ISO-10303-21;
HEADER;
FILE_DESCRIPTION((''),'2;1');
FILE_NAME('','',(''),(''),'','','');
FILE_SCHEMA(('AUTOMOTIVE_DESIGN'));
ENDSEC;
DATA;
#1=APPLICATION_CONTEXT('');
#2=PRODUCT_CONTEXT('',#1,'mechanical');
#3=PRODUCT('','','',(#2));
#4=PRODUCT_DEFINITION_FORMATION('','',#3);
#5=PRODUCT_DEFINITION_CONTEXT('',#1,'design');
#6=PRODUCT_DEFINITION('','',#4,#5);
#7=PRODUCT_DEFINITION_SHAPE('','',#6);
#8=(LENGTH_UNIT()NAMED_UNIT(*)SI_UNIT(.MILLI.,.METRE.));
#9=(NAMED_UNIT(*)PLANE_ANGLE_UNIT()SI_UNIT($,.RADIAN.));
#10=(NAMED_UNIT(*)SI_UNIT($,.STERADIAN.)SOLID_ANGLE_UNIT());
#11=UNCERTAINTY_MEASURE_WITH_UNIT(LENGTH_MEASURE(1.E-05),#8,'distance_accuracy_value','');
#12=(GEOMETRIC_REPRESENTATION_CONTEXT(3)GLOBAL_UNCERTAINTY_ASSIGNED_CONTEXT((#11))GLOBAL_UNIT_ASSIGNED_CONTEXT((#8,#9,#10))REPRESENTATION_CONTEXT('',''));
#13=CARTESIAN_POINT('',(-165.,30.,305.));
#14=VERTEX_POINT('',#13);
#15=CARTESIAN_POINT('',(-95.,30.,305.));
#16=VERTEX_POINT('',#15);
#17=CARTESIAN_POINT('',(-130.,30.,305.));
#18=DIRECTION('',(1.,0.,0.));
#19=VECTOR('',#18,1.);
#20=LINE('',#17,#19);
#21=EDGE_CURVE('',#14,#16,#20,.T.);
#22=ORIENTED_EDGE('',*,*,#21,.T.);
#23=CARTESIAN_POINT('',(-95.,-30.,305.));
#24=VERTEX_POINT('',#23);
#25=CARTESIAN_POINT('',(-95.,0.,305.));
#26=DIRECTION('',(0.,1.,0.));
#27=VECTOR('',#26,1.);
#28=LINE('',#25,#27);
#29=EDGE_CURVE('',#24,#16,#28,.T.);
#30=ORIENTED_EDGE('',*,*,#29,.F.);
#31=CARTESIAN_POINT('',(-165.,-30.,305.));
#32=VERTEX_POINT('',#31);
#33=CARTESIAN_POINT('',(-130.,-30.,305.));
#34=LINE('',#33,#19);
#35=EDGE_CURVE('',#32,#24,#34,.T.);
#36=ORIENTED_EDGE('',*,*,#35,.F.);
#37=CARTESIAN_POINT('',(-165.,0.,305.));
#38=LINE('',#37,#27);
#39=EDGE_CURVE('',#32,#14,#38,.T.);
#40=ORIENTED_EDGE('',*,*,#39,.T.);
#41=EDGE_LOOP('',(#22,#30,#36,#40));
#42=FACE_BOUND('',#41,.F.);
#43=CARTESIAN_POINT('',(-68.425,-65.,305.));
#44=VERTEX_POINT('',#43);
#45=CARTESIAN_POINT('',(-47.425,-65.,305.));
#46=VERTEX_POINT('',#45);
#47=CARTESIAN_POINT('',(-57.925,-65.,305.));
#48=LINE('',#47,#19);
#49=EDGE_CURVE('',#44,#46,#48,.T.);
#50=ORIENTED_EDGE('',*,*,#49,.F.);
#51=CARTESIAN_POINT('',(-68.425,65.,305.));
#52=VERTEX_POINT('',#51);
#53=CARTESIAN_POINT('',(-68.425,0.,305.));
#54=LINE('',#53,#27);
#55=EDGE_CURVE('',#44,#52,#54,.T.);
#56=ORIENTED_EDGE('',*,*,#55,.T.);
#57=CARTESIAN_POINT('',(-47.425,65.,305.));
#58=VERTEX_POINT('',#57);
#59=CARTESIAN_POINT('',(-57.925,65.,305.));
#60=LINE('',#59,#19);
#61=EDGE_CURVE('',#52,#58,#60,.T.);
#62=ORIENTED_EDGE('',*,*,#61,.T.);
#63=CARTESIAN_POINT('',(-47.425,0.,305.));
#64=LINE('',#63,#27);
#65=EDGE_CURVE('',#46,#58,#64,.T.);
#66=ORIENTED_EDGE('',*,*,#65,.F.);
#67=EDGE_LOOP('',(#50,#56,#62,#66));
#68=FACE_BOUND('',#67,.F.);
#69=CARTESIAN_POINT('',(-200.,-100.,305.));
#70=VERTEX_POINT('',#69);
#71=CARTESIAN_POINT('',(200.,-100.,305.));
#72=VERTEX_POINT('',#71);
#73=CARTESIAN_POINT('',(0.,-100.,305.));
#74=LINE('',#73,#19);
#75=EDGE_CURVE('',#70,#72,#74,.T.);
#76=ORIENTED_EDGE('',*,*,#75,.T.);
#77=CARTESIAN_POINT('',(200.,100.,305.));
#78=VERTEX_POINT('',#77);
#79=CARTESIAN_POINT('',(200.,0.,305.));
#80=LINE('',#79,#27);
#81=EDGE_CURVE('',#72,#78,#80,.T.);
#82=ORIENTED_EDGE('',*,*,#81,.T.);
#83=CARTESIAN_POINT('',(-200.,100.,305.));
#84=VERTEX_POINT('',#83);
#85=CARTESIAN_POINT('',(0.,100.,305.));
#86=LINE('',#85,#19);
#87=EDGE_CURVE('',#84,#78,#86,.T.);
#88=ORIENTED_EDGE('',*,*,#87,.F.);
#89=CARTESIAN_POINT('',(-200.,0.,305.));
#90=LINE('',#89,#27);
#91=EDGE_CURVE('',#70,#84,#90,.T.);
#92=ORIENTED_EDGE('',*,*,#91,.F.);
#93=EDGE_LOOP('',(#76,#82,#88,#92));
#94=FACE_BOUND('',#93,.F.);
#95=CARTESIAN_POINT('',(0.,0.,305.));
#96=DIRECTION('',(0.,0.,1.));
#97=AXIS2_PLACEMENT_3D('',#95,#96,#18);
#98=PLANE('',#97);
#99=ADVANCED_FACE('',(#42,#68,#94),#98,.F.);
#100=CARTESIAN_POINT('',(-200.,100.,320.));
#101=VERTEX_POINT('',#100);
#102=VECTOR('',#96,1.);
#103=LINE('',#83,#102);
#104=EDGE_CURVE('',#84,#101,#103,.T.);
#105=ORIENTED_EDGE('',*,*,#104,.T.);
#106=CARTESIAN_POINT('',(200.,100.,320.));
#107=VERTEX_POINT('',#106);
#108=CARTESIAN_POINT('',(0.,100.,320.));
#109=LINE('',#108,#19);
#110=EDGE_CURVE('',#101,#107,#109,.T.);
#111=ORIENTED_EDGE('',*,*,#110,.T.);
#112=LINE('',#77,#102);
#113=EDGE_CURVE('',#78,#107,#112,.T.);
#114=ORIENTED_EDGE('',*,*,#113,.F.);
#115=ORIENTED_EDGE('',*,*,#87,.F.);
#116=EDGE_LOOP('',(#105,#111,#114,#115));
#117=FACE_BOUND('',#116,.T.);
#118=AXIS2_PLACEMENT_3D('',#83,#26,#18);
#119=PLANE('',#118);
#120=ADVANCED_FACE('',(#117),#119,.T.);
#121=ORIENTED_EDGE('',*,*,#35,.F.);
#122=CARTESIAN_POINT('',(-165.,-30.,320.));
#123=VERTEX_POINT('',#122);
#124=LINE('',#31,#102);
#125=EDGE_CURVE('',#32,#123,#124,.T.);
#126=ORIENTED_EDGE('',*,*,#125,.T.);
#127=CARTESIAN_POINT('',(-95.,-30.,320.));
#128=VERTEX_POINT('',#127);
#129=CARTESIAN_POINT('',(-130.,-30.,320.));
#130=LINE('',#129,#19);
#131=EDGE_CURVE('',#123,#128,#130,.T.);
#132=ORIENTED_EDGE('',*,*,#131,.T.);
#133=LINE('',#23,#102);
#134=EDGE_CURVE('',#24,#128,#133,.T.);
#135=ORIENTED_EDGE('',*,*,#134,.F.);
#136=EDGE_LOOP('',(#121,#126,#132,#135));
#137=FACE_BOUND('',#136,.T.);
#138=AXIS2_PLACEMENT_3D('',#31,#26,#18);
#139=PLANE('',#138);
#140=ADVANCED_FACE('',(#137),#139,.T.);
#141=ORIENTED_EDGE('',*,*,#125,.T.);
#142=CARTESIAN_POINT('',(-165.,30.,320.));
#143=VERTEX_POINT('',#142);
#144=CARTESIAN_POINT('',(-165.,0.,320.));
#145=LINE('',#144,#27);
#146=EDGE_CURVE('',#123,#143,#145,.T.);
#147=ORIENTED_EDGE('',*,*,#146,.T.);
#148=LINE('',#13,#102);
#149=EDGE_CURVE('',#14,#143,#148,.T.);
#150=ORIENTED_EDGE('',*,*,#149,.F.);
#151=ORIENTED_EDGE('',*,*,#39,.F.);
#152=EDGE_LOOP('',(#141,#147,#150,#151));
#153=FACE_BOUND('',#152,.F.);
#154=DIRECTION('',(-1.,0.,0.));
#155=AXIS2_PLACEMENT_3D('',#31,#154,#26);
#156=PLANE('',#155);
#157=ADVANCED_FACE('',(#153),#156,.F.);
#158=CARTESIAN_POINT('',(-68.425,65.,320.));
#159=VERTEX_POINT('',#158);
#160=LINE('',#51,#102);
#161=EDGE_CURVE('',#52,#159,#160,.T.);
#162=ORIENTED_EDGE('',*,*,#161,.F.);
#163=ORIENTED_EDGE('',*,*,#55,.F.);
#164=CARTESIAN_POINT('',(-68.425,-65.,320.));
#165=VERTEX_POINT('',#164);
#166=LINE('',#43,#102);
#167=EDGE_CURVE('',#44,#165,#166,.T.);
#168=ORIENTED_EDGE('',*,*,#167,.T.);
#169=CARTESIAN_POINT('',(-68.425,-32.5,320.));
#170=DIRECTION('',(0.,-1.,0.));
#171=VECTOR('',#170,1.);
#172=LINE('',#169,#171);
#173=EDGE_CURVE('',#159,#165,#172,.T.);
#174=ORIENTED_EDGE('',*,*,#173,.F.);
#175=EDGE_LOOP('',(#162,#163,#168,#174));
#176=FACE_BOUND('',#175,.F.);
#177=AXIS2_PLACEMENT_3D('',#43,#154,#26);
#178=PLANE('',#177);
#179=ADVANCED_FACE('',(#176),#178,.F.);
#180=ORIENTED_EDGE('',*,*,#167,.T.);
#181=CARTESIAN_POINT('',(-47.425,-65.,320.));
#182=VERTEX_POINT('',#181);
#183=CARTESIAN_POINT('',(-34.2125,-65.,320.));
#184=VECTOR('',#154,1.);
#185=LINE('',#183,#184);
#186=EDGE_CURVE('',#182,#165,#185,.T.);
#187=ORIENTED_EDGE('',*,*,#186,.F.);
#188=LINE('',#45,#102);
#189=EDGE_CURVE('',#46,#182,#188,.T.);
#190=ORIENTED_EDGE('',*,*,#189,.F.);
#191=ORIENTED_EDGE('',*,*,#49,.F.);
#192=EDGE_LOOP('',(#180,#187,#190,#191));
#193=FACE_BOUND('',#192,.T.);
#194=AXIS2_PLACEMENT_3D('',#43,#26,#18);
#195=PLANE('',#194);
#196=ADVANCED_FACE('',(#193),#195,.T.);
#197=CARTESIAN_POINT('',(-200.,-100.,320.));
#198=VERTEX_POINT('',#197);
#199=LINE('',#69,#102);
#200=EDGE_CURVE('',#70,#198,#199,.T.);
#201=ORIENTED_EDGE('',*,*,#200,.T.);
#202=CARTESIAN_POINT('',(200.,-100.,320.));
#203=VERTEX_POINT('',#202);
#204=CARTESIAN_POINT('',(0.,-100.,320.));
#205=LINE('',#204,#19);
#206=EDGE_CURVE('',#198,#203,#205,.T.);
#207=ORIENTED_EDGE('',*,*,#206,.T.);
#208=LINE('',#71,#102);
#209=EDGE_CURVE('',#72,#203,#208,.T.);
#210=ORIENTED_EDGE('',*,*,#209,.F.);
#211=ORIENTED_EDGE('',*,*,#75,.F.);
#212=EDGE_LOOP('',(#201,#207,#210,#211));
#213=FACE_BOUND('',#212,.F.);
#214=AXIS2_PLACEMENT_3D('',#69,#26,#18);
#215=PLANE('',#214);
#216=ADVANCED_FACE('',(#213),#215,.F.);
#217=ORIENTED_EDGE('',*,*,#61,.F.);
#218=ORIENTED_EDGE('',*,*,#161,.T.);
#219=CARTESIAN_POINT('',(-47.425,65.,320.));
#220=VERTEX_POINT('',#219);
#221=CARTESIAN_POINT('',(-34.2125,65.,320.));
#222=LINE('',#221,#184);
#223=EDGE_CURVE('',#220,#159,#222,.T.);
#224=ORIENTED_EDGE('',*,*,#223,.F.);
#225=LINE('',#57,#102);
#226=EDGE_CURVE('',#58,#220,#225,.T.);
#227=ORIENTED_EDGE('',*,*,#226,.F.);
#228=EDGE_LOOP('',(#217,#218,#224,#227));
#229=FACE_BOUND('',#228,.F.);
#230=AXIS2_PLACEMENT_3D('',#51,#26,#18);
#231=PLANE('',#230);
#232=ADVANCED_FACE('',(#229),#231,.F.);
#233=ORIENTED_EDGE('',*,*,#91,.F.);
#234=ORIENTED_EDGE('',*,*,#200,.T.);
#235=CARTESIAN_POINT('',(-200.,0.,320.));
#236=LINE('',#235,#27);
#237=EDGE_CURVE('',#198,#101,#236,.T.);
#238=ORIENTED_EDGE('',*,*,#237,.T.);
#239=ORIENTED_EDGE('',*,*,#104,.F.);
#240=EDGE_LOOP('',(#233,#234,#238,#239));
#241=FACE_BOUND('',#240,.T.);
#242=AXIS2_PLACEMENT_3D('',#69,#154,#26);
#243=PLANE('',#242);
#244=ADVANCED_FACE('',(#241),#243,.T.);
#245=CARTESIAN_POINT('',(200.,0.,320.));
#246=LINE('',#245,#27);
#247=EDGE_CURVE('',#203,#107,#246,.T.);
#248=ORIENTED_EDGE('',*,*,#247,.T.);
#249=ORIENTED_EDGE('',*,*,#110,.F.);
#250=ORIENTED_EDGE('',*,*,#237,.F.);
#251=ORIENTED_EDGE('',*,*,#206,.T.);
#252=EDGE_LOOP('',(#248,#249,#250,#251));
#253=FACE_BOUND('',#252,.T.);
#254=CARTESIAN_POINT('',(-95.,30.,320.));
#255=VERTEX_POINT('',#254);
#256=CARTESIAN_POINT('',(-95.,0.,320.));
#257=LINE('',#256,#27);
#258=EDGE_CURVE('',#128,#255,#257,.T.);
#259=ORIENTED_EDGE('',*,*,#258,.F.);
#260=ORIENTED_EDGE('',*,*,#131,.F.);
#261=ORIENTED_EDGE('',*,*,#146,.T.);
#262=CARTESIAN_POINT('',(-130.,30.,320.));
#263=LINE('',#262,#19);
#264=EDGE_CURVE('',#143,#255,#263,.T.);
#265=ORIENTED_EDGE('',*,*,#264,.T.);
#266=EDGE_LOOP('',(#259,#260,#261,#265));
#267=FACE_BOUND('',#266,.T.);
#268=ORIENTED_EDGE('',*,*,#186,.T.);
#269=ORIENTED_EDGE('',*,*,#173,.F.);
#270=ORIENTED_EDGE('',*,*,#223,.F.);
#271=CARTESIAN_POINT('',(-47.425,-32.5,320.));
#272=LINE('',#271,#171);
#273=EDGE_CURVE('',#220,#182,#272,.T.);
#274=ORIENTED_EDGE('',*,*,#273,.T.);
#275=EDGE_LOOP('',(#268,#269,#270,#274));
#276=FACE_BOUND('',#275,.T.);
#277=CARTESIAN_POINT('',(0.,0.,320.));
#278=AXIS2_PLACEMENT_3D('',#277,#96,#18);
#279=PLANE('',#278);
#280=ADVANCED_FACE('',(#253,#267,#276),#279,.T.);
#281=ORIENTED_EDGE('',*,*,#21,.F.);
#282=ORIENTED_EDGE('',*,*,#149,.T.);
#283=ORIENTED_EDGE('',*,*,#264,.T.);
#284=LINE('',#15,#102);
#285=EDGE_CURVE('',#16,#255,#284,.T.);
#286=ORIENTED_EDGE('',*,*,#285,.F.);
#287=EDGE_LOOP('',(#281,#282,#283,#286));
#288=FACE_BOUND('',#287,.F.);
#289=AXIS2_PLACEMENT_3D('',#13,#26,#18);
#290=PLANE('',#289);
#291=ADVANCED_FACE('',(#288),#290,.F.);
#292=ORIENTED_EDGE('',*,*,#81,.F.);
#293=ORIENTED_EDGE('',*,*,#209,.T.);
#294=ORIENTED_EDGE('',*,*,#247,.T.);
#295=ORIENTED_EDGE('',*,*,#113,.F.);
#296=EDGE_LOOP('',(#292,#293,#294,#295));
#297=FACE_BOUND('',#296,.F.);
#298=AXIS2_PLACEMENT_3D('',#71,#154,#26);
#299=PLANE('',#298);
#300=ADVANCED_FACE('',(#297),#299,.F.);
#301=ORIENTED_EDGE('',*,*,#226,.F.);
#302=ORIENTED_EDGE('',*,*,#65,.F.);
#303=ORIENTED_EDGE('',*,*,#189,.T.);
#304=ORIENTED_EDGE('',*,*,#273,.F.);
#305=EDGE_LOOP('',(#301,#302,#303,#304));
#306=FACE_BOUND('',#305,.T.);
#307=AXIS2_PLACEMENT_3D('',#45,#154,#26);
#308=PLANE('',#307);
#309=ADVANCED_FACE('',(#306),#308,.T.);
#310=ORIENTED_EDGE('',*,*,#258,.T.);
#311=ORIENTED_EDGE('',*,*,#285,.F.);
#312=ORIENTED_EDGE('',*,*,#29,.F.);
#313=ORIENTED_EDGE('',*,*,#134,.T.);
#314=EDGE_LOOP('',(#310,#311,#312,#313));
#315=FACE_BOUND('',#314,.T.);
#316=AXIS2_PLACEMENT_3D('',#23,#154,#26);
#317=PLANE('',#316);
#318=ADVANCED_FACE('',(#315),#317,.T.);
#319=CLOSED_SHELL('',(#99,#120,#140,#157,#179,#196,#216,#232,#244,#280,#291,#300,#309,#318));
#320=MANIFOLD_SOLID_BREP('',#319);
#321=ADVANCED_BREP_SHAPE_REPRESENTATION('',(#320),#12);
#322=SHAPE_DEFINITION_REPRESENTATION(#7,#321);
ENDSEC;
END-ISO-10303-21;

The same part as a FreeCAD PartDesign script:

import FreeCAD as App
import Part
import Sketcher
Q = App.Units.Quantity

doc = App.newDocument("Part")
params = doc.addObject("Spreadsheet::Sheet", "Params")
for row, (alias, value) in enumerate([
    ("sketch1_width", "400 mm"),
    ("sketch1_height", "200 mm"),
    ("pad1_length", "15 mm"),
    ("sketch2_width", "70 mm"),
    ("sketch2_height", "60 mm"),
    ("pocket1_length", "15 mm"),
    ("sketch3_width", "21 mm"),
    ("sketch3_height", "130 mm"),
], start=1):
    params.set(f"A{row}", alias)
    params.set(f"B{row}", "=" + value)
    params.setAlias(f"B{row}", alias)

body = doc.addObject("PartDesign::Body", "Body")

sketch1 = doc.addObject("Sketcher::SketchObject", "Sketch")
body.addObject(sketch1)
sketch1.AttachmentSupport = (doc.XY_Plane, [""])
sketch1.MapMode = "FlatFace"
sketch1.addGeometry([
    Part.LineSegment(App.Vector(-200, 100, 0), App.Vector(-200, -100, 0)),
    Part.LineSegment(App.Vector(-200, -100, 0), App.Vector(200, -100, 0)),
    Part.LineSegment(App.Vector(200, -100, 0), App.Vector(200, 100, 0)),
    Part.LineSegment(App.Vector(200, 100, 0), App.Vector(-200, 100, 0)),
], False)
sketch1.addConstraint([
    Sketcher.Constraint("Coincident", 0, 2, 1, 1),
    Sketcher.Constraint("Coincident", 1, 2, 2, 1),
    Sketcher.Constraint("Coincident", 2, 2, 3, 1),
    Sketcher.Constraint("Coincident", 3, 2, 0, 1),
    Sketcher.Constraint("Vertical", 0),
    Sketcher.Constraint("Horizontal", 1),
    Sketcher.Constraint("Vertical", 2),
    Sketcher.Constraint("Horizontal", 3),
    Sketcher.Constraint("Symmetric", 0, 2, 2, 2, -1, 1),
    Sketcher.Constraint("DistanceX", 1, 1, 1, 2, Q("400 mm")),
    Sketcher.Constraint("DistanceY", 0, 2, 0, 1, Q("200 mm")),
])
sketch1.setExpression("Constraints[9]", "Params.sketch1_width")
sketch1.setExpression("Constraints[10]", "Params.sketch1_height")
pad1 = doc.addObject("PartDesign::Pad", "Pad")
body.addObject(pad1)
pad1.Profile = sketch1
pad1.setExpression("Length", "Params.pad1_length")

sketch2 = doc.addObject("Sketcher::SketchObject", "Sketch001")
body.addObject(sketch2)
sketch2.AttachmentSupport = (doc.XY_Plane, [""])
sketch2.MapMode = "FlatFace"
sketch2.addGeometry([
    Part.LineSegment(App.Vector(-165, 30, 0), App.Vector(-165, -30, 0)),
    Part.LineSegment(App.Vector(-165, -30, 0), App.Vector(-95, -30, 0)),
    Part.LineSegment(App.Vector(-95, -30, 0), App.Vector(-95, 30, 0)),
    Part.LineSegment(App.Vector(-95, 30, 0), App.Vector(-165, 30, 0)),
], False)
sketch2.addConstraint([
    Sketcher.Constraint("Coincident", 0, 2, 1, 1),
    Sketcher.Constraint("Coincident", 1, 2, 2, 1),
    Sketcher.Constraint("Coincident", 2, 2, 3, 1),
    Sketcher.Constraint("Coincident", 3, 2, 0, 1),
    Sketcher.Constraint("Vertical", 0),
    Sketcher.Constraint("Horizontal", 1),
    Sketcher.Constraint("Vertical", 2),
    Sketcher.Constraint("Horizontal", 3),
    Sketcher.Constraint("DistanceX", 1, 1, 1, 2, Q("70 mm")),
    Sketcher.Constraint("DistanceY", 0, 2, 0, 1, Q("60 mm")),
    Sketcher.Constraint("DistanceX", 0, 2, -1, 1, Q("165 mm")),
    Sketcher.Constraint("DistanceY", 0, 2, -1, 1, Q("30 mm")),
])
sketch2.setExpression("Constraints[8]", "Params.sketch2_width")
sketch2.setExpression("Constraints[9]", "Params.sketch2_height")
pocket1 = doc.addObject("PartDesign::Pocket", "Pocket")
body.addObject(pocket1)
pocket1.Profile = sketch2
pocket1.setExpression("Length", "Params.pocket1_length")
pocket1.Reversed = True

sketch3 = doc.addObject("Sketcher::SketchObject", "Sketch002")
body.addObject(sketch3)
sketch3.AttachmentSupport = (doc.XY_Plane, [""])
sketch3.MapMode = "FlatFace"
sketch3.addGeometry([
    Part.LineSegment(App.Vector(-68.425, 65, 0), App.Vector(-68.425, -65, 0)),
    Part.LineSegment(App.Vector(-68.425, -65, 0), App.Vector(-47.425, -65, 0)),
    Part.LineSegment(App.Vector(-47.425, -65, 0), App.Vector(-47.425, 65, 0)),
    Part.LineSegment(App.Vector(-47.425, 65, 0), App.Vector(-68.425, 65, 0)),
], False)
sketch3.addConstraint([
    Sketcher.Constraint("Coincident", 0, 2, 1, 1),
    Sketcher.Constraint("Coincident", 1, 2, 2, 1),
    Sketcher.Constraint("Coincident", 2, 2, 3, 1),
    Sketcher.Constraint("Coincident", 3, 2, 0, 1),
    Sketcher.Constraint("Vertical", 0),
    Sketcher.Constraint("Horizontal", 1),
    Sketcher.Constraint("Vertical", 2),
    Sketcher.Constraint("Horizontal", 3),
    Sketcher.Constraint("DistanceX", 1, 1, 1, 2, Q("21 mm")),
    Sketcher.Constraint("DistanceY", 0, 2, 0, 1, Q("130 mm")),
    Sketcher.Constraint("DistanceY", 0, 2, -1, 1, Q("65 mm")),
    Sketcher.Constraint("DistanceX", 0, 2, -1, 1, Q("68.425 mm")),
])
sketch3.setExpression("Constraints[8]", "Params.sketch3_width")
sketch3.setExpression("Constraints[9]", "Params.sketch3_height")
pocket2 = doc.addObject("PartDesign::Pocket", "Pocket001")
body.addObject(pocket2)
pocket2.Profile = sketch3
pocket2.Type = "ThroughAll"
pocket2.Reversed = True
body2 = doc.addObject("PartDesign::Body", "Body001")
doc.recompute()

body.Placement = App.Placement(App.Vector(0, 0, 305), App.Rotation(App.Vector(0, 0, 1), 0))
boolean = doc.addObject("PartDesign::Boolean", "Boolean")
body2.addObject(boolean)
boolean.Type = "Fuse"
boolean.addObjects([body])

doc.recompute()
